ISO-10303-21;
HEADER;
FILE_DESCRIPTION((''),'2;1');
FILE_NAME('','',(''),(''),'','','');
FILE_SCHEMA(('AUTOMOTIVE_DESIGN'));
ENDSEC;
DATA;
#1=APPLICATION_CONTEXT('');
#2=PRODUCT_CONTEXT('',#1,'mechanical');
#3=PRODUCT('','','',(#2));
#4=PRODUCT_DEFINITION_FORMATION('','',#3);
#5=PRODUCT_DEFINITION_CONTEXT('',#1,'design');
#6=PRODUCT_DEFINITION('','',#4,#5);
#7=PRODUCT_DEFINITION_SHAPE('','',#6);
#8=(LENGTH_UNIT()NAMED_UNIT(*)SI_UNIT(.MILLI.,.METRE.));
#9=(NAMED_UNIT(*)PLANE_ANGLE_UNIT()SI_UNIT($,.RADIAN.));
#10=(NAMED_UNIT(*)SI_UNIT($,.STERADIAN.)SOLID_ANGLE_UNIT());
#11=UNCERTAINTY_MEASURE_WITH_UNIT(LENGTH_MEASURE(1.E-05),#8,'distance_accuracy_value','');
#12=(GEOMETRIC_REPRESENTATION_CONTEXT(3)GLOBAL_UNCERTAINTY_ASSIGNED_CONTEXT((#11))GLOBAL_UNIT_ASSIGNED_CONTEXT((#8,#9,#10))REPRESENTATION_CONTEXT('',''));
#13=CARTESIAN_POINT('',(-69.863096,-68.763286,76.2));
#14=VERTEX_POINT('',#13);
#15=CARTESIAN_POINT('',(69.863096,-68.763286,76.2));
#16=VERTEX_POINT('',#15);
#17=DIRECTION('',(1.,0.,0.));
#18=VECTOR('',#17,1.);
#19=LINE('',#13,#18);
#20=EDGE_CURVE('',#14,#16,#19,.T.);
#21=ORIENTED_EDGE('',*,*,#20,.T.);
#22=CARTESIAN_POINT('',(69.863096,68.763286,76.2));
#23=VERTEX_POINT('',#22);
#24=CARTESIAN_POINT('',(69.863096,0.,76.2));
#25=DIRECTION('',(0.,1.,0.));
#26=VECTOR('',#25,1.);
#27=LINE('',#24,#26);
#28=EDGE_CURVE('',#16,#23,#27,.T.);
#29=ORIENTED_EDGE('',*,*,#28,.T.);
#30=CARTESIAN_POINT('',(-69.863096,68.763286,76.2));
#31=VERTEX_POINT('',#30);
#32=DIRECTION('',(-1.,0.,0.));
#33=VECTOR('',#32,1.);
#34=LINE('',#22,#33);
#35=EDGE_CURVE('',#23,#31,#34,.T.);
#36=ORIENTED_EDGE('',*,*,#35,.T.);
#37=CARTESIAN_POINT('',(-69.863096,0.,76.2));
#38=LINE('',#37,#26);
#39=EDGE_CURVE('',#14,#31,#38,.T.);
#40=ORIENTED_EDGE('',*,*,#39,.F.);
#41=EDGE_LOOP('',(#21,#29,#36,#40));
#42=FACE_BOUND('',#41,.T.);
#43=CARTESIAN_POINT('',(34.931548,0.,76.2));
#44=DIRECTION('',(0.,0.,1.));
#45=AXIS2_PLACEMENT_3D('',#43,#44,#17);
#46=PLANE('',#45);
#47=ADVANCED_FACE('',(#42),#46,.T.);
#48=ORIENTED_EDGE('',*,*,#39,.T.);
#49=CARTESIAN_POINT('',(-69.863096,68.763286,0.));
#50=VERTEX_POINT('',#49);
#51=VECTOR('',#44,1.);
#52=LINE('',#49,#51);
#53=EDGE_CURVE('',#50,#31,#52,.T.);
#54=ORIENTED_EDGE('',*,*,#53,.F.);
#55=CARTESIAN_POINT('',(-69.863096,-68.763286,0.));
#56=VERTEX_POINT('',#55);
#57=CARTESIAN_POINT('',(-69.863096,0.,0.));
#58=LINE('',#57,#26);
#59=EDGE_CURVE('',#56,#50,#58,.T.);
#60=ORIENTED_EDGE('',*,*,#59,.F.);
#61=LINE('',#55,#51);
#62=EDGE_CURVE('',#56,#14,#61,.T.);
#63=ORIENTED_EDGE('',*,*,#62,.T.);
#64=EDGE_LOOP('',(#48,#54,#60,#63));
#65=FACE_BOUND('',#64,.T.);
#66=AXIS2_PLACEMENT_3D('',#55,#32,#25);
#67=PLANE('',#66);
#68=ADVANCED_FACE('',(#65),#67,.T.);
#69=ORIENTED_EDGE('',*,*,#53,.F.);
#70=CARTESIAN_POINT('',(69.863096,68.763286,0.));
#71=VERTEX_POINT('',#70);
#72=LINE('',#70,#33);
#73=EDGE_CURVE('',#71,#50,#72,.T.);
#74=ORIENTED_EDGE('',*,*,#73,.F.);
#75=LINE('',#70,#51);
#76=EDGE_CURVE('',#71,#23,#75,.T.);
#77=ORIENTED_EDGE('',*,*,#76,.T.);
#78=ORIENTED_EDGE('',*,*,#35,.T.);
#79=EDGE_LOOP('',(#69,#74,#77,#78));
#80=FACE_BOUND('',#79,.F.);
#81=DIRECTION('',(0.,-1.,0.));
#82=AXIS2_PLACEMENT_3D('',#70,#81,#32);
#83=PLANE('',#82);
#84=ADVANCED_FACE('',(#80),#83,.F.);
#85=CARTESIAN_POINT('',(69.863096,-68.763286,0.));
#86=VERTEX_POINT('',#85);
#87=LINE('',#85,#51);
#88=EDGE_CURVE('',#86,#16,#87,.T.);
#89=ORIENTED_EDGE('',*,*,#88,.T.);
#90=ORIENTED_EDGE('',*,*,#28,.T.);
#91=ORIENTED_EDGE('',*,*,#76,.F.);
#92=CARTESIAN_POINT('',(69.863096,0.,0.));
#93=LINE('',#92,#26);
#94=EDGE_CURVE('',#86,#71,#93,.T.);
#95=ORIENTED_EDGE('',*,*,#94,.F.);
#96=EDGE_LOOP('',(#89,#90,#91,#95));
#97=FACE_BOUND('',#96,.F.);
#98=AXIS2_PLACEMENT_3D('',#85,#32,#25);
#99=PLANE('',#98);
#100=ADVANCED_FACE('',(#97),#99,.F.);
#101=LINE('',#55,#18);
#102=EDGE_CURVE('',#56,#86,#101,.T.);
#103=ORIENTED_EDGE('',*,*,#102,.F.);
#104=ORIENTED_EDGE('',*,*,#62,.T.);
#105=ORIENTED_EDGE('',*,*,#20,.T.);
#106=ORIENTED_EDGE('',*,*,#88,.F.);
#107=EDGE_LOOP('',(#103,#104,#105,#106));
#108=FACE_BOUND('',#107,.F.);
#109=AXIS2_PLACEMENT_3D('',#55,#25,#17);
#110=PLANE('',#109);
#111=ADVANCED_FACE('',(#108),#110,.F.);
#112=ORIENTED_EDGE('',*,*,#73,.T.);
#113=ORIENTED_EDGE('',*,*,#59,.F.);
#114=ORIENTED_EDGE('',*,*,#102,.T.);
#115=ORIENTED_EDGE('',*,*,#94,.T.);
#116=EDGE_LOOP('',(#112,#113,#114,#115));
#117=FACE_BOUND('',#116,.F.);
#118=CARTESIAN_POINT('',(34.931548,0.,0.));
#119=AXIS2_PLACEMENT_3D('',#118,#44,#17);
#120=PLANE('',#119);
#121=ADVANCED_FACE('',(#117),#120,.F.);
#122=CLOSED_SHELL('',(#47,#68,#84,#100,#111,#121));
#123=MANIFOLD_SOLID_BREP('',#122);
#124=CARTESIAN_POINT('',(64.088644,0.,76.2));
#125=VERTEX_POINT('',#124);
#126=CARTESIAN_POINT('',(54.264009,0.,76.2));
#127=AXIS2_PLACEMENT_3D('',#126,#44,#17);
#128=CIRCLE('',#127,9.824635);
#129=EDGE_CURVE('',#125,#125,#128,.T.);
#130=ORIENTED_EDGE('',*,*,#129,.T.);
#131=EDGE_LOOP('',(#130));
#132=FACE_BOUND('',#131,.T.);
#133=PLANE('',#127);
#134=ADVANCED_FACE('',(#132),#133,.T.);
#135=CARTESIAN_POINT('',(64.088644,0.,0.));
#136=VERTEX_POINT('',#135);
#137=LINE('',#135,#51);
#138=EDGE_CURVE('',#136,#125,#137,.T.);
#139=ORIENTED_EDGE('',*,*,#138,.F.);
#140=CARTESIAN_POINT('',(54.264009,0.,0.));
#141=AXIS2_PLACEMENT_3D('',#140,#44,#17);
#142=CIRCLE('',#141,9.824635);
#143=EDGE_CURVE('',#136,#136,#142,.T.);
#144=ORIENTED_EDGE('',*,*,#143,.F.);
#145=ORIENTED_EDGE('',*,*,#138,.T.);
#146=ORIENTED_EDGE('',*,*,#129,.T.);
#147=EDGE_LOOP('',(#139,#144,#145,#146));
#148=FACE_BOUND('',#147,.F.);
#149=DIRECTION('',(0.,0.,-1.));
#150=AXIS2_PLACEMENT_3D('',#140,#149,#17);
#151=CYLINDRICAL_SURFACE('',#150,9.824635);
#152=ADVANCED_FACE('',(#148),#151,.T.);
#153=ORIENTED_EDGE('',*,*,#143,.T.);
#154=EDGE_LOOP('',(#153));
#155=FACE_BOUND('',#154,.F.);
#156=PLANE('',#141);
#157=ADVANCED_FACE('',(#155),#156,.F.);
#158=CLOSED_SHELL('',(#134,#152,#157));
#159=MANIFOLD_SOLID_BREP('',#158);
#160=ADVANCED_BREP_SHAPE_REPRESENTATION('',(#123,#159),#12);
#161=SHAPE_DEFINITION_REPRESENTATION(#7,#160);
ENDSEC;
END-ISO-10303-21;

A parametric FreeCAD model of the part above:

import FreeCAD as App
import Part
import Sketcher
Q = App.Units.Quantity

doc = App.newDocument("Part")
body = doc.addObject("PartDesign::Body", "Body")

# Sketch on XY plane
sketch1 = body.newObject("Sketcher::SketchObject", "Sketch")
sketch1.AttachmentSupport = (doc.getObject("XY_Plane"), [""])
sketch1.MapMode = "FlatFace"
sketch1.addGeometry(Part.Circle(App.Vector(54.264009, 0, 0), App.Vector(0, 0, 1), 9.824635), False)
sketch1.addConstraint([
    Sketcher.Constraint("PointOnObject", 0, 3, -1),
    Sketcher.Constraint("Diameter", 0, 19.649271),
    Sketcher.Constraint("DistanceX", -1, 1, 0, 3, 54.264009),
])
pad1 = body.newObject("PartDesign::Pad", "Pad")
pad1.Profile = sketch1
pad1.Length = Q("3 in")
body2 = doc.addObject("PartDesign::Body", "Body001")

# Sketch on XY plane
sketch2 = body2.newObject("Sketcher::SketchObject", "Sketch001")
sketch2.AttachmentSupport = (doc.getObject("XY_Plane001"), [""])
sketch2.MapMode = "FlatFace"
sketch2.addGeometry([
    Part.LineSegment(App.Vector(69.863096, -68.763286, 0), App.Vector(69.863096, 68.763286, 0)),
    Part.LineSegment(App.Vector(69.863096, 68.763286, 0), App.Vector(-69.863096, 68.763286, 0)),
    Part.LineSegment(App.Vector(-69.863096, 68.763286, 0), App.Vector(-69.863096, -68.763286, 0)),
    Part.LineSegment(App.Vector(-69.863096, -68.763286, 0), App.Vector(69.863096, -68.763286, 0)),
], False)
sketch2.addConstraint([
    Sketcher.Constraint("Coincident", 0, 2, 1, 1),
    Sketcher.Constraint("Coincident", 1, 2, 2, 1),
    Sketcher.Constraint("Coincident", 2, 2, 3, 1),
    Sketcher.Constraint("Coincident", 3, 2, 0, 1),
    Sketcher.Constraint("Vertical", 0),
    Sketcher.Constraint("Horizontal", 1),
    Sketcher.Constraint("Vertical", 2),
    Sketcher.Constraint("Horizontal", 3),
    Sketcher.Constraint("Symmetric", 0, 2, 2, 2, -1, 1),
    Sketcher.Constraint("DistanceX", 1, 2, 1, 1, 139.726192),
    Sketcher.Constraint("DistanceY", 0, 1, 0, 2, 137.526572),
])
pad2 = body2.newObject("PartDesign::Pad", "Pad001")
pad2.Profile = sketch2
pad2.Length = Q("3 in")

doc.recompute()
